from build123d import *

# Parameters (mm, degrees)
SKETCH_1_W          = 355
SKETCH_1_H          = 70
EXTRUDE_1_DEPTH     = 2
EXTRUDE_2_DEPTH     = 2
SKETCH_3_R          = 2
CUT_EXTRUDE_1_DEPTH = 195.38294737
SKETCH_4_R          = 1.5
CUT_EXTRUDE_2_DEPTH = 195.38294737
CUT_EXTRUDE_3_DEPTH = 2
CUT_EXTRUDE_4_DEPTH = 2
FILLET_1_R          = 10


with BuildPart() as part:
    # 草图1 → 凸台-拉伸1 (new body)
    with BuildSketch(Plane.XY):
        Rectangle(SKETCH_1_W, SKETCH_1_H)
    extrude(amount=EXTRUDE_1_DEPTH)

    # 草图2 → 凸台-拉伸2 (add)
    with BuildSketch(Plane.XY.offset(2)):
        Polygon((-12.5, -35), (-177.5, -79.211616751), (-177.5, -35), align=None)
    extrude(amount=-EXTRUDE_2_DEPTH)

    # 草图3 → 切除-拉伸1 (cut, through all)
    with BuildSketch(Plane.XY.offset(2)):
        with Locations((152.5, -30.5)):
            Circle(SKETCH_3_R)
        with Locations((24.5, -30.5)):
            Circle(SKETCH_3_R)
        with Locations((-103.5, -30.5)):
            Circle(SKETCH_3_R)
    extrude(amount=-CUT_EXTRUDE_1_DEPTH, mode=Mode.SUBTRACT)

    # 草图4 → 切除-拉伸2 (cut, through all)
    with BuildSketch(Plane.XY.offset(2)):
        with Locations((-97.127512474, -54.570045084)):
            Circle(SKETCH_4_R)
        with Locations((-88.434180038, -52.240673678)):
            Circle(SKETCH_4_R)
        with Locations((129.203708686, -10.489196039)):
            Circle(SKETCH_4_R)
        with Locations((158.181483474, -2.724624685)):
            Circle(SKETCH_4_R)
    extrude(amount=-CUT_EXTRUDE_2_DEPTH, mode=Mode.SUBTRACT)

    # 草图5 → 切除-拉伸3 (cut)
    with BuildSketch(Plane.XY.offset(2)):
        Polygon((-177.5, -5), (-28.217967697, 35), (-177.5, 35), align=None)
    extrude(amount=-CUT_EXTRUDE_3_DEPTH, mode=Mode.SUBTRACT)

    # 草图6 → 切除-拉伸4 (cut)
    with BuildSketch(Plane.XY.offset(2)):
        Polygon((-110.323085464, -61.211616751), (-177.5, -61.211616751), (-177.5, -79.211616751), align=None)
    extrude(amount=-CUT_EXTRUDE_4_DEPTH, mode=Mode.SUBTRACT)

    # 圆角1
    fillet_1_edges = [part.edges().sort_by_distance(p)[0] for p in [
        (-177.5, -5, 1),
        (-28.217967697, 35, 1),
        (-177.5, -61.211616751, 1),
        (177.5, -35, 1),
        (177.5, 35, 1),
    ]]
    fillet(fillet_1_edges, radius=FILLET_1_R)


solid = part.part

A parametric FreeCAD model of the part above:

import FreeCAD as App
import Part
import Sketcher
Q = App.Units.Quantity


def edges_at(feature, points):
    """Names of the edges that pass closest to the given points."""
    edges = feature.Shape.Edges
    near = lambda p: min(range(len(edges)), key=lambda i: edges[i].distToShape(Part.Vertex(*p))[0])
    return sorted({f"Edge{near(p) + 1}" for p in points})


def add_polygon(sketch, points):
    """Adds a closed chain of lines whose ends are joined by coincident constraints."""
    first, n = sketch.GeometryCount, len(points)
    for a, b in zip(points, points[1:] + points[:1]):
        sketch.addGeometry(Part.LineSegment(App.Vector(*a, 0), App.Vector(*b, 0)), False)
    for i in range(n):
        sketch.addConstraint(Sketcher.Constraint("Coincident", first + i, 2, first + (i + 1) % n, 1))

doc = App.newDocument("Part")
body = doc.addObject("PartDesign::Body", "Body")

# Sketch on XY plane
sketch1 = body.newObject("Sketcher::SketchObject", "Sketch")
sketch1.AttachmentSupport = (doc.getObject("XY_Plane"), [""])
sketch1.MapMode = "FlatFace"
add_polygon(sketch1, [(-178, 35), (-178, -35), (178, -35), (178, 35)])  # lines 0-3
sketch1.addConstraint([
    Sketcher.Constraint("Vertical", 0),
    Sketcher.Constraint("Horizontal", 1),
    Sketcher.Constraint("Vertical", 2),
    Sketcher.Constraint("Horizontal", 3),
    Sketcher.Constraint("Symmetric", 0, 2, 2, 2, -1, 1),
    Sketcher.Constraint("DistanceX", 1, 1, 1, 2, Q("355 mm")),
    Sketcher.Constraint("DistanceY", 0, 2, 0, 1, Q("70 mm")),
])
pad1 = body.newObject("PartDesign::Pad", "Pad")
pad1.Profile = sketch1
pad1.Length = 2

# Sketch on XY plane
sketch2 = body.newObject("Sketcher::SketchObject", "Sketch001")
sketch2.AttachmentSupport = (doc.getObject("XY_Plane"), [""])
sketch2.MapMode = "FlatFace"
sketch2.AttachmentOffset = App.Placement(App.Vector(0, 0, 2), App.Rotation())
add_polygon(sketch2, [(-178, -79), (-12, -35), (-178, -35)])  # lines 0-2
sketch2.addConstraint([
    Sketcher.Constraint("Horizontal", 1),
    Sketcher.Constraint("Vertical", 2),
    Sketcher.Constraint("DistanceX", 1, 2, 1, 1, Q("165 mm")),
    Sketcher.Constraint("Angle", 0, Q("15 deg")),
    Sketcher.Constraint("DistanceY", 0, 2, -1, 1, Q("35 mm")),
    Sketcher.Constraint("DistanceX", 0, 2, -1, 1, Q("12.5 mm")),
])
pad2 = body.newObject("PartDesign::Pad", "Pad001")
pad2.Profile = sketch2
pad2.Length = 2
pad2.Reversed = True

# Sketch on XY plane
sketch3 = body.newObject("Sketcher::SketchObject", "Sketch002")
sketch3.AttachmentSupport = (doc.getObject("XY_Plane"), [""])
sketch3.MapMode = "FlatFace"
sketch3.AttachmentOffset = App.Placement(App.Vector(0, 0, 2), App.Rotation())
sketch3.addGeometry([
    Part.Circle(App.Vector(152.5, -30.5, 0), App.Vector(0, 0, 1), 2),
    Part.Circle(App.Vector(24.5, -30.5, 0), App.Vector(0, 0, 1), 2),
    Part.Circle(App.Vector(-103.5, -30.5, 0), App.Vector(0, 0, 1), 2),
], False)
sketch3.addConstraint([
    Sketcher.Constraint("Equal", 0, 1),
    Sketcher.Constraint("Equal", 1, 2),
    Sketcher.Constraint("Horizontal", 0, 3, 1, 3),
    Sketcher.Constraint("Horizontal", 1, 3, 2, 3),
    Sketcher.Constraint("Diameter", 0, Q("4 mm")),
    Sketcher.Constraint("DistanceX", 1, 3, 0, 3, Q("128 mm")),
    Sketcher.Constraint("DistanceX", 2, 3, 1, 3, Q("128 mm")),
    Sketcher.Constraint("DistanceX", -1, 1, 0, 3, Q("152.5 mm")),
    Sketcher.Constraint("DistanceY", 0, 3, -1, 1, Q("30.5 mm")),
])
pocket1 = body.newObject("PartDesign::Pocket", "Pocket")
pocket1.Profile = sketch3
pocket1.Type = "ThroughAll"

# Sketch on XY plane
sketch4 = body.newObject("Sketcher::SketchObject", "Sketch003")
sketch4.AttachmentSupport = (doc.getObject("XY_Plane"), [""])
sketch4.MapMode = "FlatFace"
sketch4.AttachmentOffset = App.Placement(App.Vector(0, 0, 2), App.Rotation())
sketch4.addGeometry([
    Part.Circle(App.Vector(-97.1, -54.6, 0), App.Vector(0, 0, 1), 1.5),
    Part.Circle(App.Vector(-88.4, -52.2, 0), App.Vector(0, 0, 1), 1.5),
    Part.Circle(App.Vector(129.2, -10.5, 0), App.Vector(0, 0, 1), 1.5),
    Part.Circle(App.Vector(158.2, -2.7, 0), App.Vector(0, 0, 1), 1.5),
], False)
sketch4.addConstraint([
    Sketcher.Constraint("Equal", 0, 1),
    Sketcher.Constraint("Equal", 1, 2),
    Sketcher.Constraint("Equal", 2, 3),
    Sketcher.Constraint("Diameter", 0, Q("3 mm")),
    Sketcher.Constraint("DistanceX", 1, 3, -1, 1, Q("88.43418 mm")),
    Sketcher.Constraint("DistanceX", -1, 1, 2, 3, Q("129.203709 mm")),
    Sketcher.Constraint("DistanceY", 0, 3, 1, 3, Q("2.329371 mm")),
    Sketcher.Constraint("DistanceX", 0, 3, 2, 3, Q("226.331221 mm")),
    Sketcher.Constraint("DistanceY", 0, 3, 2, 3, Q("44.080849 mm")),
    Sketcher.Constraint("DistanceY", 2, 3, 3, 3, Q("7.764571 mm")),
    Sketcher.Constraint("DistanceY", 0, 3, -1, 1, Q("54.570045 mm")),
    Sketcher.Constraint("DistanceX", -1, 1, 3, 3, Q("158.181483 mm")),
])
pocket2 = body.newObject("PartDesign::Pocket", "Pocket001")
pocket2.Profile = sketch4
pocket2.Type = "ThroughAll"

# Sketch on XY plane
sketch5 = body.newObject("Sketcher::SketchObject", "Sketch004")
sketch5.AttachmentSupport = (doc.getObject("XY_Plane"), [""])
sketch5.MapMode = "FlatFace"
sketch5.AttachmentOffset = App.Placement(App.Vector(0, 0, 2), App.Rotation())
add_polygon(sketch5, [(-178, -5), (-28, 35), (-178, 35)])  # lines 0-2
sketch5.addConstraint([
    Sketcher.Constraint("Horizontal", 1),
    Sketcher.Constraint("Vertical", 2),
    Sketcher.Constraint("DistanceY", 2, 2, 2, 1, Q("40 mm")),
    Sketcher.Constraint("Angle", 0, Q("15 deg")),
    Sketcher.Constraint("DistanceY", -1, 1, 0, 2, Q("35 mm")),
    Sketcher.Constraint("DistanceX", 1, 2, -1, 1, Q("177.5 mm")),
])
pocket3 = body.newObject("PartDesign::Pocket", "Pocket002")
pocket3.Profile = sketch5
pocket3.Length = 2

# Sketch on XY plane
sketch6 = body.newObject("Sketcher::SketchObject", "Sketch005")
sketch6.AttachmentSupport = (doc.getObject("XY_Plane"), [""])
sketch6.MapMode = "FlatFace"
sketch6.AttachmentOffset = App.Placement(App.Vector(0, 0, 2), App.Rotation())
add_polygon(sketch6, [(-110, -61), (-178, -61), (-178, -79)])  # lines 0-2
sketch6.addConstraint([
    Sketcher.Constraint("Horizontal", 0),
    Sketcher.Constraint("Vertical", 1),
    Sketcher.Constraint("DistanceY", 1, 2, 1, 1, Q("18 mm")),
    Sketcher.Constraint("Angle", 2, Q("15 deg")),
    Sketcher.Constraint("DistanceX", 0, 2, -1, 1, Q("177.5 mm")),
    Sketcher.Constraint("DistanceY", 0, 2, -1, 1, Q("61.211617 mm")),
])
pocket4 = body.newObject("PartDesign::Pocket", "Pocket003")
pocket4.Profile = sketch6
pocket4.Length = 2
doc.recompute()

fillet = body.newObject("PartDesign::Fillet", "Fillet")
fillet.Base = (pocket4, edges_at(pocket4, [
    (-177.5, -5, 1),
    (-28.218, 35, 1),
    (-177.5, -61.212, 1),
    (177.5, -35, 1),
    (177.5, 35, 1),
]))
fillet.Radius = 10

doc.recompute()
